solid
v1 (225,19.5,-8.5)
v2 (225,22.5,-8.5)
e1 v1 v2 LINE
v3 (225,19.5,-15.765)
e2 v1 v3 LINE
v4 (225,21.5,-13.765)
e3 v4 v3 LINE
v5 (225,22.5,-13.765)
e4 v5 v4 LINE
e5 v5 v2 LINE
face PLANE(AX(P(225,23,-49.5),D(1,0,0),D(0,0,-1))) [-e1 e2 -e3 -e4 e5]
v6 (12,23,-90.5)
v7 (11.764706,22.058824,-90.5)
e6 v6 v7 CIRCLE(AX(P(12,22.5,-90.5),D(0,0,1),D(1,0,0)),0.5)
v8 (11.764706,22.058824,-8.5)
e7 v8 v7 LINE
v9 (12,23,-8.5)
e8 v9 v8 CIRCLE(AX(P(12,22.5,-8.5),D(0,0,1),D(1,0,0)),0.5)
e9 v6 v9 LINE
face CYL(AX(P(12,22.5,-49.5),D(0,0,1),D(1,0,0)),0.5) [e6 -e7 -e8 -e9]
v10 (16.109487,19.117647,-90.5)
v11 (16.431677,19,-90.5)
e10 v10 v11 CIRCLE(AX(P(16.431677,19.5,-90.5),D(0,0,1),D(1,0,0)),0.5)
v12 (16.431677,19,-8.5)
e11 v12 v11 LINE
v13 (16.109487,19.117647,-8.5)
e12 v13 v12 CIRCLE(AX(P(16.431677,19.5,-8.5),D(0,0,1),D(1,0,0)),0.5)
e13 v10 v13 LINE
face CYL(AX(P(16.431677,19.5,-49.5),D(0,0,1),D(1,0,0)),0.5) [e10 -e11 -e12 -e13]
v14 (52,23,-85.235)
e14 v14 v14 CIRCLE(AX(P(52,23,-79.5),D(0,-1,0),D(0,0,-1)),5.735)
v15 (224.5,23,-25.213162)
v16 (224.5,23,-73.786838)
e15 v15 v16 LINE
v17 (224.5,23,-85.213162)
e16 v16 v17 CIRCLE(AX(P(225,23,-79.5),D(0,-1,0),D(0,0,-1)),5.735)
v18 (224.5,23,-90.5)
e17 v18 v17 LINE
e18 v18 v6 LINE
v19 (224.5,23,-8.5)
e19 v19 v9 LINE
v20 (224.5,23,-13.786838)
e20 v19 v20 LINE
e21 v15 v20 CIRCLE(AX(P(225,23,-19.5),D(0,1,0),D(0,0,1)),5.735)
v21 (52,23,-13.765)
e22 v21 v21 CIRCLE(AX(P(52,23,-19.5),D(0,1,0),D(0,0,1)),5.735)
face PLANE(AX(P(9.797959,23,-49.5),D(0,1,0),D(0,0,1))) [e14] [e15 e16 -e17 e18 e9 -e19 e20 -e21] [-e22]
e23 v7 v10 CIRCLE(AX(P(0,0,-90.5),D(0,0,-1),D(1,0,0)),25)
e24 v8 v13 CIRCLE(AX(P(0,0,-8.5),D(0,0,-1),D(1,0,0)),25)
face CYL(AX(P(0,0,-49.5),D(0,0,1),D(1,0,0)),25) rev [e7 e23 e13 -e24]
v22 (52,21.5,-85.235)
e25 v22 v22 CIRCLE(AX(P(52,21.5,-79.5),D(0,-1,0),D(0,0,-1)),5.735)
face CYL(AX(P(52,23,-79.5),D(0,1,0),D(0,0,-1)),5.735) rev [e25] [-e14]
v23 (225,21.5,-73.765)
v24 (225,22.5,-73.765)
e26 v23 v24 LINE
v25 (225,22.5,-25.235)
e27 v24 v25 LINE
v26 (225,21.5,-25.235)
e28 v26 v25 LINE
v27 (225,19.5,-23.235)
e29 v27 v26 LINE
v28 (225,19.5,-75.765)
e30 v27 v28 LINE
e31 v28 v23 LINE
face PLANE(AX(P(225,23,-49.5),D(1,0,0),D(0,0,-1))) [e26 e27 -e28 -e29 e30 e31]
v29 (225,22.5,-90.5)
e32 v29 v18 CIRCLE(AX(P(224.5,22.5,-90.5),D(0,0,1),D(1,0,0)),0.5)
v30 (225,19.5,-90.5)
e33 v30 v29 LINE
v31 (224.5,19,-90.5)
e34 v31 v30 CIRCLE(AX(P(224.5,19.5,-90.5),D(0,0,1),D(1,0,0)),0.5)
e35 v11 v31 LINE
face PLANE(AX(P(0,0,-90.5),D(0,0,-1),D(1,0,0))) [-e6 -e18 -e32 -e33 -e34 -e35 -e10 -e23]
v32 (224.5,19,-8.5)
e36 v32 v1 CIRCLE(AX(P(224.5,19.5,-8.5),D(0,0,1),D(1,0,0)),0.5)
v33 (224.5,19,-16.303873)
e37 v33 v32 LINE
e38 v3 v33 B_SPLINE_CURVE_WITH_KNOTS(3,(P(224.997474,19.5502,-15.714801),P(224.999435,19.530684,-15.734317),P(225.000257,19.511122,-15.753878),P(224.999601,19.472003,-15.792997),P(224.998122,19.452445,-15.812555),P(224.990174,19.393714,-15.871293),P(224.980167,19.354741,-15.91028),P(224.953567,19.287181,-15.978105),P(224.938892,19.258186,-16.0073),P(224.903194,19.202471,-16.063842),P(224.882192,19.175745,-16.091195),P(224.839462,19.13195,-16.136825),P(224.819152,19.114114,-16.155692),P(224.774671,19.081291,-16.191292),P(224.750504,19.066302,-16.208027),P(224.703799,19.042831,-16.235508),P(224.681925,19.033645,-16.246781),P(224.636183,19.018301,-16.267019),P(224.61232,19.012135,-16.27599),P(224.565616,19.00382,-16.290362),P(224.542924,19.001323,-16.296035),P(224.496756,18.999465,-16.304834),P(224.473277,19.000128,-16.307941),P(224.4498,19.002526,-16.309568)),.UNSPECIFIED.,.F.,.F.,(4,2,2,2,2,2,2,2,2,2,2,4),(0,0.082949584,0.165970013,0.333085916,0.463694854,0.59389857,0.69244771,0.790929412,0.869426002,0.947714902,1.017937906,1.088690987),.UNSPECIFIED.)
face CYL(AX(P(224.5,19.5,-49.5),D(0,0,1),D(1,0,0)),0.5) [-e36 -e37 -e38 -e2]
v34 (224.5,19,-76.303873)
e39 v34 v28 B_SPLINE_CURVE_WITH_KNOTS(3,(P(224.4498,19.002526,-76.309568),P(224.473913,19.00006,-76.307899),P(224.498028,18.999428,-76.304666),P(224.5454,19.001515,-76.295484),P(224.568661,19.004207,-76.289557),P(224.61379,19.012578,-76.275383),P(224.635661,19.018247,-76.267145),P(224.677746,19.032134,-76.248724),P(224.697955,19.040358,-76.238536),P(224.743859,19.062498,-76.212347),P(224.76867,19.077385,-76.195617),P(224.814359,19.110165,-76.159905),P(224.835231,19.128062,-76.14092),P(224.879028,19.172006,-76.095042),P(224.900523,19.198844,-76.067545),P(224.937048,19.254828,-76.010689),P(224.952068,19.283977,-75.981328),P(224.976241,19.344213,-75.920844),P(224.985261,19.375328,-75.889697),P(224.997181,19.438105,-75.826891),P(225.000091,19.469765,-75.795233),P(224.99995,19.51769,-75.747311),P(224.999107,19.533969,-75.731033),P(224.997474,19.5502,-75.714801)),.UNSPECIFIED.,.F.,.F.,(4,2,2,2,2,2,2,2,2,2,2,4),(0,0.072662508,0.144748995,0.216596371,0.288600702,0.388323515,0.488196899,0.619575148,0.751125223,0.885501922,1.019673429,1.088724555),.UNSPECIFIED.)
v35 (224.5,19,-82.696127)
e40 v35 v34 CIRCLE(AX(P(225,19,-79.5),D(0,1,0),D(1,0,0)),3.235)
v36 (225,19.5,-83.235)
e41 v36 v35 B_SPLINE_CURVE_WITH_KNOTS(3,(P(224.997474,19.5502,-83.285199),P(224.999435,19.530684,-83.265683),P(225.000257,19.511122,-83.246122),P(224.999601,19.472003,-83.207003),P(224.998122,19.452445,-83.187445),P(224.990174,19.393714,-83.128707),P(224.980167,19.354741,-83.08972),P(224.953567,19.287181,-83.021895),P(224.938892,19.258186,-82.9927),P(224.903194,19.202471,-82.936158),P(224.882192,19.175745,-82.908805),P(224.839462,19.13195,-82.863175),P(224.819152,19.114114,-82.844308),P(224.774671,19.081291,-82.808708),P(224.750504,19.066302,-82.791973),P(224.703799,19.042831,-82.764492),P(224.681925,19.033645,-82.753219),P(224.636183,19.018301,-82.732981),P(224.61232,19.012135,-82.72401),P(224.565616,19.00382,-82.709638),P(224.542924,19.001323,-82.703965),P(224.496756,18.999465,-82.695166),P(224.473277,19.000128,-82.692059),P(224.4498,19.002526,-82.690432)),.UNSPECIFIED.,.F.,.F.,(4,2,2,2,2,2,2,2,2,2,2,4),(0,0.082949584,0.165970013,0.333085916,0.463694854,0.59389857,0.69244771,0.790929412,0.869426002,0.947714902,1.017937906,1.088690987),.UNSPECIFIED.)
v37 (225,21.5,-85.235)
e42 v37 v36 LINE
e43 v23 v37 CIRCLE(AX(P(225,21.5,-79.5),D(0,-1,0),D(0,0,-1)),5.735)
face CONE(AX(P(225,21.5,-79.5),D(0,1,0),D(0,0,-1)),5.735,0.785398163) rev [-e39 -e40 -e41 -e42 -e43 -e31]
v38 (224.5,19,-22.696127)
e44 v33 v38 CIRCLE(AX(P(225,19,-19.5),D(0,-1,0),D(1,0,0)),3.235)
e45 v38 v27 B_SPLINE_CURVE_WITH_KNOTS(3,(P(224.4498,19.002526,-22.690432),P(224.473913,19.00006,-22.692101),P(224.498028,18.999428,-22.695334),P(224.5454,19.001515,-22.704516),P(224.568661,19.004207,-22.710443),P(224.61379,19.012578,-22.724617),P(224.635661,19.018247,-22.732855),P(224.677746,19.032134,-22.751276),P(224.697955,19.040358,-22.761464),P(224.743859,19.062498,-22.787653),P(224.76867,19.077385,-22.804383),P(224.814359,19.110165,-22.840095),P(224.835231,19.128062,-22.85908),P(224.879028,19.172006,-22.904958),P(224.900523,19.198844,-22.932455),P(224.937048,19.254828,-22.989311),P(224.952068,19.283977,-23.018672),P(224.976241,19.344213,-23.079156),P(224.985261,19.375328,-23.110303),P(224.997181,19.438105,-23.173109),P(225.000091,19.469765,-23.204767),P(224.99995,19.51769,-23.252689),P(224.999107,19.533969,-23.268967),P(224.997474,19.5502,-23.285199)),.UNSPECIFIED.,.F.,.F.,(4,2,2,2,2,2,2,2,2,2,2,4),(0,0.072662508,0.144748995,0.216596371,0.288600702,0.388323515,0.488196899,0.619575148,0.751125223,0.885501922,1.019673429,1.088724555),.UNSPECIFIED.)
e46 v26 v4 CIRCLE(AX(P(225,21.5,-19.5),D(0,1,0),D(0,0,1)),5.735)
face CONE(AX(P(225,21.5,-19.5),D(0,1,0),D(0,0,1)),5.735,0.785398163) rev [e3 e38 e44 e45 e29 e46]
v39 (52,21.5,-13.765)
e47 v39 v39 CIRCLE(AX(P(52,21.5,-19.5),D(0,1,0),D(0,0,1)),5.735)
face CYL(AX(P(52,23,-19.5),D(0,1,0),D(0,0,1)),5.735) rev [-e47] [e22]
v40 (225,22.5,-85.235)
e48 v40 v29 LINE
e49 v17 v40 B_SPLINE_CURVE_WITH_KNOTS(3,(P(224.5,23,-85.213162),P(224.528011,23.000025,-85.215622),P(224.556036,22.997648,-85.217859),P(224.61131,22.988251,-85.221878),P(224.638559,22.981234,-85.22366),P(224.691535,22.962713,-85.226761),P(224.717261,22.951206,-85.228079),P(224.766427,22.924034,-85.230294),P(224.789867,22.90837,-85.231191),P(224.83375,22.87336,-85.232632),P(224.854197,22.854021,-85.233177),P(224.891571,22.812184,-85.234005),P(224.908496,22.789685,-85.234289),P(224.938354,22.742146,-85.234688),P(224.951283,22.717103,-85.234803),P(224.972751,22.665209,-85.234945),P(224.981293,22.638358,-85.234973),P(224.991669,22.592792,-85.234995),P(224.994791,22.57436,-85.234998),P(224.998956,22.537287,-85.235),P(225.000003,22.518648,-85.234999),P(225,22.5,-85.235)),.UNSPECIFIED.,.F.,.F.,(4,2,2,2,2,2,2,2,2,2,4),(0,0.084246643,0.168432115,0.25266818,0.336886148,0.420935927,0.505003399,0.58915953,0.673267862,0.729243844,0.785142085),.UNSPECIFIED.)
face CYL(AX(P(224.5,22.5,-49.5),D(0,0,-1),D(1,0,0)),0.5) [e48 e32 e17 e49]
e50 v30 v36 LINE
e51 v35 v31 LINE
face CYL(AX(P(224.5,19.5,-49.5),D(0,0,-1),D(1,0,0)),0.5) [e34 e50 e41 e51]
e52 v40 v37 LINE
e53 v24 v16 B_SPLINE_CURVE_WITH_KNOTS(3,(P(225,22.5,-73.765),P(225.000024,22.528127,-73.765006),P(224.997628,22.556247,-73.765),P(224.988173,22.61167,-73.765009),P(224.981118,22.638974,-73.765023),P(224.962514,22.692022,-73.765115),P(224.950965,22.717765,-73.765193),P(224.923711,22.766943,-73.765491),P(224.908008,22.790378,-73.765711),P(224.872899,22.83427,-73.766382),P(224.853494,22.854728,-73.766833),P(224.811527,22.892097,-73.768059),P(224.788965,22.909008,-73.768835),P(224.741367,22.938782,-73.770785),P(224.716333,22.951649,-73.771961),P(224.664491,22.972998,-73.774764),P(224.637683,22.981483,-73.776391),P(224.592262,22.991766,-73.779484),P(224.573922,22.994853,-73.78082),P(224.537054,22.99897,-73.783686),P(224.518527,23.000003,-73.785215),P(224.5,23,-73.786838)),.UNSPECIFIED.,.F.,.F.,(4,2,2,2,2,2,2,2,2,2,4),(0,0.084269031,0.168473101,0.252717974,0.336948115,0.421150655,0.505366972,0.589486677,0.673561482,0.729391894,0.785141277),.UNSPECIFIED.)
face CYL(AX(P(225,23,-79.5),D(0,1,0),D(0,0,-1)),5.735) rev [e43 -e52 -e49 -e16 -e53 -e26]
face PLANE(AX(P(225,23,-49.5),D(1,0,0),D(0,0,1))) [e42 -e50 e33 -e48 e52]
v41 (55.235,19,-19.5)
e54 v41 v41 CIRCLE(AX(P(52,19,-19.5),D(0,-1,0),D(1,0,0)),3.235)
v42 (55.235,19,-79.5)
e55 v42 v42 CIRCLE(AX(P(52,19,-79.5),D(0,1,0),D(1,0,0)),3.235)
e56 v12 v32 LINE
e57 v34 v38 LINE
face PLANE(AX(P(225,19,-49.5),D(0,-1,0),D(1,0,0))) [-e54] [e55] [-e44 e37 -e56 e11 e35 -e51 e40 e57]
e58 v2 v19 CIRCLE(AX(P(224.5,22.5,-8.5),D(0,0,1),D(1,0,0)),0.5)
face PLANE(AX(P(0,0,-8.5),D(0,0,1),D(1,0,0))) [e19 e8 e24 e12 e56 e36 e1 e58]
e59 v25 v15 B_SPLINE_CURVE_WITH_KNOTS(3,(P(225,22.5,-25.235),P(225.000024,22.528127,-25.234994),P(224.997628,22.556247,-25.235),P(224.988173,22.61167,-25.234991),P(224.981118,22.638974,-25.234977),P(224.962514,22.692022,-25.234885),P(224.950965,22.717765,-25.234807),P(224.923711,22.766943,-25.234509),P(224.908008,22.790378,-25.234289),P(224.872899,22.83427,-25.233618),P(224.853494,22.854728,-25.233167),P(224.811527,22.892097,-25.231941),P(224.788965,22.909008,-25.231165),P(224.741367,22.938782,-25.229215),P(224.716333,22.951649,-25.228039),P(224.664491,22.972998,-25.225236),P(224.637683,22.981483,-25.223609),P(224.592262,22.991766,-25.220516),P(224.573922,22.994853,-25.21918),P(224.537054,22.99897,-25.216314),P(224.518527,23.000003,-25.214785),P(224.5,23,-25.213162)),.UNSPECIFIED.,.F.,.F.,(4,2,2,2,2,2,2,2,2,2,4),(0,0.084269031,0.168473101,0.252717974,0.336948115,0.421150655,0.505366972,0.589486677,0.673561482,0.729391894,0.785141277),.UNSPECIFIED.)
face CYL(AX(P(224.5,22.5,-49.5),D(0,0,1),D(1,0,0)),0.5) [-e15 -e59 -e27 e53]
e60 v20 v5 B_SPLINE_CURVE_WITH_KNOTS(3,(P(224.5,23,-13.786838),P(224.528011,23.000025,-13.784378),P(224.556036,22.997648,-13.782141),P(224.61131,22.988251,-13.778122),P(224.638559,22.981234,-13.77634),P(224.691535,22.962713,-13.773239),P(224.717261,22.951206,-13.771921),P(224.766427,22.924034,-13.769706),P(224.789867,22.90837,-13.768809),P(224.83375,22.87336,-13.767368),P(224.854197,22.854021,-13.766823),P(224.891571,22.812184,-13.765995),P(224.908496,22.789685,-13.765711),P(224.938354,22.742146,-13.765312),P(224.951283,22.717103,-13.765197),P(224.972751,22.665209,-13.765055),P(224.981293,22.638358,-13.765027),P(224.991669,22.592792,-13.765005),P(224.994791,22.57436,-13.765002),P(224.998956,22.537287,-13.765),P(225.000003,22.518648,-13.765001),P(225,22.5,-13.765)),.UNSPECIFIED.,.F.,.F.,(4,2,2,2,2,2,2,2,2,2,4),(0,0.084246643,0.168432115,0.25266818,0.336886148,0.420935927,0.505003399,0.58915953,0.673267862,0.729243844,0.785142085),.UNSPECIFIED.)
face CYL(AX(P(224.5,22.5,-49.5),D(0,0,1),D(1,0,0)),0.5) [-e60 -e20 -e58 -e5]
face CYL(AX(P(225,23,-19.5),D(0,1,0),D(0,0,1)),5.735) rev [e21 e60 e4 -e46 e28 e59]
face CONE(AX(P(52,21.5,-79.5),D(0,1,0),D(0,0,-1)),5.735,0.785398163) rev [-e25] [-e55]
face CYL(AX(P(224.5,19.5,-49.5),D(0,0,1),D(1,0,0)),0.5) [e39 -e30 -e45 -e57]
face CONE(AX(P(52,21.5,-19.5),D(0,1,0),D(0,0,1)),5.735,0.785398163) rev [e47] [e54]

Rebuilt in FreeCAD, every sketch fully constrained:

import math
import FreeCAD as App
import Part
import Sketcher
from FreeCAD import Vector
Q = App.Units.Quantity


def edges_at(feature, points):
    """Names of the edges that pass closest to the given points."""
    edges = feature.Shape.Edges
    near = lambda p: min(range(len(edges)), key=lambda i: edges[i].distToShape(Part.Vertex(*p))[0])
    return sorted({f"Edge{near(p) + 1}" for p in points})


def add_polygon(sketch, points):
    """Adds a closed chain of lines whose ends are joined by coincident constraints."""
    first, n = sketch.GeometryCount, len(points)
    for a, b in zip(points, points[1:] + points[:1]):
        sketch.addGeometry(Part.LineSegment(App.Vector(*a, 0), App.Vector(*b, 0)), False)
    for i in range(n):
        sketch.addConstraint(Sketcher.Constraint("Coincident", first + i, 2, first + (i + 1) % n, 1))

doc = App.newDocument("Part")
body = doc.addObject("PartDesign::Body", "Body")

# Sketch on XY plane
sketch1 = body.newObject("Sketcher::SketchObject", "Sketch")
sketch1.AttachmentSupport = (doc.getObject("XY_Plane"), [""])
sketch1.MapMode = "FlatFace"
sketch1.AttachmentOffset = App.Placement(Vector(0, 0, -8.5), App.Rotation())
sketch1.addGeometry([
    Part.LineSegment(Vector(225, 23, 0), Vector(9.797959, 23, 0)),
    Part.ArcOfCircle(Part.Circle(Vector(0, 0, 0), Vector(0, 0, 1), 25), math.radians(49.464198), math.radians(66.926082)),
    Part.LineSegment(Vector(16.248077, 19, 0), Vector(225, 19, 0)),
    Part.LineSegment(Vector(225, 19, 0), Vector(225, 23, 0)),
], False)
sketch1.addConstraint([
    Sketcher.Constraint("Coincident", 0, 2, 1, 2),
    Sketcher.Constraint("Coincident", 1, 1, 2, 1),
    Sketcher.Constraint("Coincident", 2, 2, 3, 1),
    Sketcher.Constraint("Coincident", 3, 2, 0, 1),
    Sketcher.Constraint("Horizontal", 0),
    Sketcher.Constraint("Horizontal", 2),
    Sketcher.Constraint("Vertical", 3),
    Sketcher.Constraint("Coincident", 1, 3, -1, 1),
    Sketcher.Constraint("Radius", 1, Q("25 mm")),
    Sketcher.Constraint("DistanceY", 3, 1, 3, 2, Q("4 mm")),
    Sketcher.Constraint("DistanceY", -1, 1, 0, 2, Q("23 mm")),
    Sketcher.Constraint("DistanceX", -1, 1, 2, 2, Q("225 mm")),
])
pad1 = body.newObject("PartDesign::Pad", "Pad")
pad1.Profile = sketch1
pad1.Length = 41
pad1.Reversed = True
doc.recompute()

fillet = body.newObject("PartDesign::Fillet", "Fillet")
fillet.Base = (pad1, edges_at(pad1, [
    (16.248, 19, -29),
    (9.798, 23, -29),
    (225, 23, -29),
    (225, 19, -29),
]))
fillet.Radius = 0.5

# Sketch on YZ plane
sketch2 = body.newObject("Sketcher::SketchObject", "Sketch001")
sketch2.AttachmentSupport = (doc.getObject("YZ_Plane"), [""])
sketch2.MapMode = "FlatFace"
sketch2.AttachmentOffset = App.Placement(Vector(0, 0, 225), App.Rotation())
add_polygon(sketch2, [(17.347633, -19.5), (23, -19.5), (23, -13.765), (21.5, -13.765), (18.515, -16.75), (19, -16.75)])  # lines 0-5
sketch2.addGeometry(Part.LineSegment(Vector(23, -19.5, 0), Vector(17.347633, -19.5, 0)), True)  # axis
sketch2.addConstraint([
    Sketcher.Constraint("Horizontal", 0),
    Sketcher.Constraint("Vertical", 1),
    Sketcher.Constraint("Horizontal", 2),
    Sketcher.Constraint("Horizontal", 4),
    Sketcher.Constraint("Horizontal", 6),
    Sketcher.Constraint("Coincident", 6, 1, 0, 2),
    Sketcher.Constraint("Equal", 0, 6),
    Sketcher.Constraint("Angle", 3, Q("-135 deg")),
    Sketcher.Constraint("Angle", 5, Q("-121 deg")),
    Sketcher.Constraint("DistanceX", 2, 2, 2, 1, Q("1.5 mm")),
    Sketcher.Constraint("DistanceX", -1, 1, 0, 2, Q("23 mm")),
    Sketcher.Constraint("DistanceX", -1, 1, 4, 2, Q("19 mm")),
    Sketcher.Constraint("DistanceY", 0, 2, -1, 1, Q("19.5 mm")),
    Sketcher.Constraint("DistanceX", 4, 1, 4, 2, Q("0.485 mm")),
    Sketcher.Constraint("DistanceY", 1, 1, 1, 2, Q("5.735 mm")),
])
groove = body.newObject("PartDesign::Groove", "Groove")
groove.Profile = sketch2
groove.ReferenceAxis = (sketch2, ["Axis0"])
groove.Angle = 360
doc.recompute()

linearpattern = body.newObject("PartDesign::LinearPattern", "LinearPattern")
linearpattern.Originals = [groove]
linearpattern.Direction = (doc.getObject("X_Axis"), [""])
linearpattern.Mode = "offset"
linearpattern.Offset = 173
linearpattern.Occurrences = 2
linearpattern.Reversed = True
body.Tip = linearpattern
body2 = doc.addObject("PartDesign::Body", "Body001")
doc.recompute()

body2.BaseFeature = body
doc.recompute()

mirroring = doc.addObject("Part::Mirroring", "Mirroring")
mirroring.Source = body
mirroring.Base = Vector(0, 0, -49.5)
mirroring.Normal = Vector(0, 0, 1)
body3 = doc.addObject("PartDesign::Body", "Body002")
body3.BaseFeature = mirroring
boolean = body2.newObject("PartDesign::Boolean", "Boolean")
boolean.Type = "Fuse"
boolean.addObjects([body3])
doc.recompute()
mirroring.Visibility = False

doc.recompute()
